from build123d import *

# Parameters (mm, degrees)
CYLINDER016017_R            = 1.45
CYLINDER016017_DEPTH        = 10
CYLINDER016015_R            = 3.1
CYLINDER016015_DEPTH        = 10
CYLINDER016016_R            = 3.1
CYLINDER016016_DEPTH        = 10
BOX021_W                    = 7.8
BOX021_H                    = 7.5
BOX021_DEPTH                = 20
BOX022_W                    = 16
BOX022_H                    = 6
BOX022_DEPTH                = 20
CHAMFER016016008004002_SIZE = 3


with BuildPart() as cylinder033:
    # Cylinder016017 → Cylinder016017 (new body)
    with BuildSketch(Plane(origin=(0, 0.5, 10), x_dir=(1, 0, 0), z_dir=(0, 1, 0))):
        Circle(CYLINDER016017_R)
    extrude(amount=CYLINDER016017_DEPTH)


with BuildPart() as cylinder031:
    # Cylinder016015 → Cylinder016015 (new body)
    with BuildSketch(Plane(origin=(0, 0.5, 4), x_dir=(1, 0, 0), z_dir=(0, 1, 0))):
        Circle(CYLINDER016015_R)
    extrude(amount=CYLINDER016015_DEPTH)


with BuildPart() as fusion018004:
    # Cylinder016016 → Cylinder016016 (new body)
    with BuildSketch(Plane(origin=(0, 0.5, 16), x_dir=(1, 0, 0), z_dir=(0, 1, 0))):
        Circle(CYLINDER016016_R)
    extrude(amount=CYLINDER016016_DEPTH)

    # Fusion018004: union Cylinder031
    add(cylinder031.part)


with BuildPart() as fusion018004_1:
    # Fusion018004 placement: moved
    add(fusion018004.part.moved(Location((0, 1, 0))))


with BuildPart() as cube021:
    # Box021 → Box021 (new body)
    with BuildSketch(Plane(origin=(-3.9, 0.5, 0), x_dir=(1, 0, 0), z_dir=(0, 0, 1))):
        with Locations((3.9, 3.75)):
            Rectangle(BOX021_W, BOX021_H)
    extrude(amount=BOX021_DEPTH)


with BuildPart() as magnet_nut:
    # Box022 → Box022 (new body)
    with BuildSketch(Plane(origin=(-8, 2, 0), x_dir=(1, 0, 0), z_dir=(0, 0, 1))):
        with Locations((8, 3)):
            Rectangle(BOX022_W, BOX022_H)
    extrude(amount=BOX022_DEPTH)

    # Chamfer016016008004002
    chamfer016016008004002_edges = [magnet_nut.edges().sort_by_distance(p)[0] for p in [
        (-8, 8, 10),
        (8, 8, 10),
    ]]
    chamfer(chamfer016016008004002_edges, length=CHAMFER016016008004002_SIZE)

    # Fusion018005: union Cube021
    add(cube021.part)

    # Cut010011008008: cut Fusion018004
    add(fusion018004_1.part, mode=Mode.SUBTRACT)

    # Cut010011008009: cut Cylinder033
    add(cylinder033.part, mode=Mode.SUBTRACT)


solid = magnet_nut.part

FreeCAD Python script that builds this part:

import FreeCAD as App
import Part
import Sketcher


def edges_at(feature, points):
    """Names of the edges that pass closest to the given points."""
    edges = feature.Shape.Edges
    near = lambda p: min(range(len(edges)), key=lambda i: edges[i].distToShape(Part.Vertex(*p))[0])
    return sorted({f"Edge{near(p) + 1}" for p in points})


def add_polygon(sketch, points):
    """Adds a closed chain of lines whose ends are joined by coincident constraints."""
    first, n = sketch.GeometryCount, len(points)
    for a, b in zip(points, points[1:] + points[:1]):
        sketch.addGeometry(Part.LineSegment(App.Vector(*a, 0), App.Vector(*b, 0)), False)
    for i in range(n):
        sketch.addConstraint(Sketcher.Constraint("Coincident", first + i, 2, first + (i + 1) % n, 1))

doc = App.newDocument("Part")
params = doc.addObject("Spreadsheet::Sheet", "Params")
for row, (alias, value) in enumerate([
    ("sketch1_diameter", "2.9 mm"),
    ("pad1_length", "10 mm"),
    ("sketch2_diameter", "6.2 mm"),
    ("pad2_length", "10 mm"),
    ("sketch3_diameter", "6.2 mm"),
    ("pad3_length", "10 mm"),
    ("sketch4_width", "7.8 mm"),
    ("sketch4_height", "7.5 mm"),
    ("pad4_length", "20 mm"),
    ("sketch5_width", "16 mm"),
    ("sketch5_height", "6 mm"),
    ("pad5_length", "20 mm"),
    ("chamfer_size", "3 mm"),
], start=1):
    params.set(f"A{row}", alias)
    params.set(f"B{row}", "=" + value)
    params.setAlias(f"B{row}", alias)

body = doc.addObject("PartDesign::Body", "Body")

sketch1 = body.newObject("Sketcher::SketchObject", "Sketch")
sketch1.AttachmentSupport = (doc.getObject("XZ_Plane"), [""])
sketch1.MapMode = "FlatFace"
sketch1.AttachmentOffset = App.Placement(App.Vector(0, 0, -0.5), App.Rotation())
sketch1.addGeometry(Part.Circle(App.Vector(0, 10, 0), App.Vector(0, 0, 1), 1.4), False)
sketch1.addConstraint([
    Sketcher.Constraint("PointOnObject", 0, 3, -2),
    Sketcher.Constraint("Diameter", 0, 2.9),
    Sketcher.Constraint("DistanceY", -1, 1, 0, 3, 10.0),
])
sketch1.setExpression("Constraints[1]", "Params.sketch1_diameter")
pad1 = body.newObject("PartDesign::Pad", "Pad")
pad1.Profile = sketch1
pad1.setExpression("Length", "Params.pad1_length")
pad1.Reversed = True
body2 = doc.addObject("PartDesign::Body", "Body001")

sketch2 = body2.newObject("Sketcher::SketchObject", "Sketch001")
sketch2.AttachmentSupport = (doc.getObject("XZ_Plane001"), [""])
sketch2.MapMode = "FlatFace"
sketch2.AttachmentOffset = App.Placement(App.Vector(0, 0, -0.5), App.Rotation())
sketch2.addGeometry(Part.Circle(App.Vector(0, 4, 0), App.Vector(0, 0, 1), 3.1), False)
sketch2.addConstraint([
    Sketcher.Constraint("PointOnObject", 0, 3, -2),
    Sketcher.Constraint("Diameter", 0, 6.2),
    Sketcher.Constraint("DistanceY", -1, 1, 0, 3, 4.0),
])
sketch2.setExpression("Constraints[1]", "Params.sketch2_diameter")
pad2 = body2.newObject("PartDesign::Pad", "Pad001")
pad2.Profile = sketch2
pad2.setExpression("Length", "Params.pad2_length")
pad2.Reversed = True
body3 = doc.addObject("PartDesign::Body", "Body002")
body3.AllowCompound = True

sketch3 = body3.newObject("Sketcher::SketchObject", "Sketch002")
sketch3.AttachmentSupport = (doc.getObject("XZ_Plane002"), [""])
sketch3.MapMode = "FlatFace"
sketch3.AttachmentOffset = App.Placement(App.Vector(0, 0, -0.5), App.Rotation())
sketch3.addGeometry(Part.Circle(App.Vector(0, 16, 0), App.Vector(0, 0, 1), 3.1), False)
sketch3.addConstraint([
    Sketcher.Constraint("PointOnObject", 0, 3, -2),
    Sketcher.Constraint("Diameter", 0, 6.2),
    Sketcher.Constraint("DistanceY", -1, 1, 0, 3, 16.0),
])
sketch3.setExpression("Constraints[1]", "Params.sketch3_diameter")
pad3 = body3.newObject("PartDesign::Pad", "Pad002")
pad3.Profile = sketch3
pad3.setExpression("Length", "Params.pad3_length")
pad3.Reversed = True
doc.recompute()

boolean = body3.newObject("PartDesign::Boolean", "Boolean")
boolean.Type = "Fuse"
boolean.addObjects([body2])
body4 = doc.addObject("PartDesign::Body", "Body003")
body4.AllowCompound = True
doc.recompute()

body3.Placement = App.Placement(App.Vector(0, 1, 0), App.Rotation(App.Vector(0, 0, 1), 0))
boolean2 = body4.newObject("PartDesign::Boolean", "Boolean001")
boolean2.Type = "Fuse"
boolean2.addObjects([body3])
body5 = doc.addObject("PartDesign::Body", "Body004")

sketch4 = body5.newObject("Sketcher::SketchObject", "Sketch003")
sketch4.AttachmentSupport = (doc.getObject("XY_Plane004"), [""])
sketch4.MapMode = "FlatFace"
add_polygon(sketch4, [(-4, 8), (-4, 0), (4, 0), (4, 8)])
sketch4.addConstraint([
    Sketcher.Constraint("Vertical", 0),
    Sketcher.Constraint("Horizontal", 1),
    Sketcher.Constraint("Vertical", 2),
    Sketcher.Constraint("Horizontal", 3),
    Sketcher.Constraint("DistanceX", 1, 1, 1, 2, 7.8),
    Sketcher.Constraint("DistanceY", 0, 2, 0, 1, 7.5),
    Sketcher.Constraint("DistanceY", -1, 1, 2, 2, 8.0),
    Sketcher.Constraint("DistanceX", 0, 2, -1, 1, 3.9),
])
sketch4.setExpression("Constraints[8]", "Params.sketch4_width")
sketch4.setExpression("Constraints[9]", "Params.sketch4_height")
pad4 = body5.newObject("PartDesign::Pad", "Pad003")
pad4.Profile = sketch4
pad4.setExpression("Length", "Params.pad4_length")
body6 = doc.addObject("PartDesign::Body", "Body005")

sketch5 = body6.newObject("Sketcher::SketchObject", "Sketch004")
sketch5.AttachmentSupport = (doc.getObject("XY_Plane005"), [""])
sketch5.MapMode = "FlatFace"
add_polygon(sketch5, [(-8, 8), (-8, 2), (8, 2), (8, 8)])
sketch5.addConstraint([
    Sketcher.Constraint("Vertical", 0),
    Sketcher.Constraint("Horizontal", 1),
    Sketcher.Constraint("Vertical", 2),
    Sketcher.Constraint("Horizontal", 3),
    Sketcher.Constraint("DistanceX", 1, 1, 1, 2, 16.0),
    Sketcher.Constraint("DistanceY", 0, 2, 0, 1, 6.0),
    Sketcher.Constraint("DistanceX", 0, 2, -1, 1, 8.0),
    Sketcher.Constraint("DistanceY", -1, 1, 0, 2, 2.0),
])
sketch5.setExpression("Constraints[8]", "Params.sketch5_width")
sketch5.setExpression("Constraints[9]", "Params.sketch5_height")
pad5 = body6.newObject("PartDesign::Pad", "Pad004")
pad5.Profile = sketch5
pad5.setExpression("Length", "Params.pad5_length")
doc.recompute()

chamfer = body6.newObject("PartDesign::Chamfer", "Chamfer")
chamfer.Base = (pad5, edges_at(pad5, [(-8, 8, 10), (8, 8, 10)]))
chamfer.setExpression("Size", "Params.chamfer_size")
doc.recompute()

boolean3 = body6.newObject("PartDesign::Boolean", "Boolean002")
boolean3.Type = "Fuse"
boolean3.addObjects([body5])
doc.recompute()

boolean4 = body6.newObject("PartDesign::Boolean", "Boolean003")
boolean4.Type = "Cut"
boolean4.addObjects([body4])
doc.recompute()

boolean5 = body6.newObject("PartDesign::Boolean", "Boolean004")
boolean5.Type = "Cut"
boolean5.addObjects([body])

doc.recompute()
